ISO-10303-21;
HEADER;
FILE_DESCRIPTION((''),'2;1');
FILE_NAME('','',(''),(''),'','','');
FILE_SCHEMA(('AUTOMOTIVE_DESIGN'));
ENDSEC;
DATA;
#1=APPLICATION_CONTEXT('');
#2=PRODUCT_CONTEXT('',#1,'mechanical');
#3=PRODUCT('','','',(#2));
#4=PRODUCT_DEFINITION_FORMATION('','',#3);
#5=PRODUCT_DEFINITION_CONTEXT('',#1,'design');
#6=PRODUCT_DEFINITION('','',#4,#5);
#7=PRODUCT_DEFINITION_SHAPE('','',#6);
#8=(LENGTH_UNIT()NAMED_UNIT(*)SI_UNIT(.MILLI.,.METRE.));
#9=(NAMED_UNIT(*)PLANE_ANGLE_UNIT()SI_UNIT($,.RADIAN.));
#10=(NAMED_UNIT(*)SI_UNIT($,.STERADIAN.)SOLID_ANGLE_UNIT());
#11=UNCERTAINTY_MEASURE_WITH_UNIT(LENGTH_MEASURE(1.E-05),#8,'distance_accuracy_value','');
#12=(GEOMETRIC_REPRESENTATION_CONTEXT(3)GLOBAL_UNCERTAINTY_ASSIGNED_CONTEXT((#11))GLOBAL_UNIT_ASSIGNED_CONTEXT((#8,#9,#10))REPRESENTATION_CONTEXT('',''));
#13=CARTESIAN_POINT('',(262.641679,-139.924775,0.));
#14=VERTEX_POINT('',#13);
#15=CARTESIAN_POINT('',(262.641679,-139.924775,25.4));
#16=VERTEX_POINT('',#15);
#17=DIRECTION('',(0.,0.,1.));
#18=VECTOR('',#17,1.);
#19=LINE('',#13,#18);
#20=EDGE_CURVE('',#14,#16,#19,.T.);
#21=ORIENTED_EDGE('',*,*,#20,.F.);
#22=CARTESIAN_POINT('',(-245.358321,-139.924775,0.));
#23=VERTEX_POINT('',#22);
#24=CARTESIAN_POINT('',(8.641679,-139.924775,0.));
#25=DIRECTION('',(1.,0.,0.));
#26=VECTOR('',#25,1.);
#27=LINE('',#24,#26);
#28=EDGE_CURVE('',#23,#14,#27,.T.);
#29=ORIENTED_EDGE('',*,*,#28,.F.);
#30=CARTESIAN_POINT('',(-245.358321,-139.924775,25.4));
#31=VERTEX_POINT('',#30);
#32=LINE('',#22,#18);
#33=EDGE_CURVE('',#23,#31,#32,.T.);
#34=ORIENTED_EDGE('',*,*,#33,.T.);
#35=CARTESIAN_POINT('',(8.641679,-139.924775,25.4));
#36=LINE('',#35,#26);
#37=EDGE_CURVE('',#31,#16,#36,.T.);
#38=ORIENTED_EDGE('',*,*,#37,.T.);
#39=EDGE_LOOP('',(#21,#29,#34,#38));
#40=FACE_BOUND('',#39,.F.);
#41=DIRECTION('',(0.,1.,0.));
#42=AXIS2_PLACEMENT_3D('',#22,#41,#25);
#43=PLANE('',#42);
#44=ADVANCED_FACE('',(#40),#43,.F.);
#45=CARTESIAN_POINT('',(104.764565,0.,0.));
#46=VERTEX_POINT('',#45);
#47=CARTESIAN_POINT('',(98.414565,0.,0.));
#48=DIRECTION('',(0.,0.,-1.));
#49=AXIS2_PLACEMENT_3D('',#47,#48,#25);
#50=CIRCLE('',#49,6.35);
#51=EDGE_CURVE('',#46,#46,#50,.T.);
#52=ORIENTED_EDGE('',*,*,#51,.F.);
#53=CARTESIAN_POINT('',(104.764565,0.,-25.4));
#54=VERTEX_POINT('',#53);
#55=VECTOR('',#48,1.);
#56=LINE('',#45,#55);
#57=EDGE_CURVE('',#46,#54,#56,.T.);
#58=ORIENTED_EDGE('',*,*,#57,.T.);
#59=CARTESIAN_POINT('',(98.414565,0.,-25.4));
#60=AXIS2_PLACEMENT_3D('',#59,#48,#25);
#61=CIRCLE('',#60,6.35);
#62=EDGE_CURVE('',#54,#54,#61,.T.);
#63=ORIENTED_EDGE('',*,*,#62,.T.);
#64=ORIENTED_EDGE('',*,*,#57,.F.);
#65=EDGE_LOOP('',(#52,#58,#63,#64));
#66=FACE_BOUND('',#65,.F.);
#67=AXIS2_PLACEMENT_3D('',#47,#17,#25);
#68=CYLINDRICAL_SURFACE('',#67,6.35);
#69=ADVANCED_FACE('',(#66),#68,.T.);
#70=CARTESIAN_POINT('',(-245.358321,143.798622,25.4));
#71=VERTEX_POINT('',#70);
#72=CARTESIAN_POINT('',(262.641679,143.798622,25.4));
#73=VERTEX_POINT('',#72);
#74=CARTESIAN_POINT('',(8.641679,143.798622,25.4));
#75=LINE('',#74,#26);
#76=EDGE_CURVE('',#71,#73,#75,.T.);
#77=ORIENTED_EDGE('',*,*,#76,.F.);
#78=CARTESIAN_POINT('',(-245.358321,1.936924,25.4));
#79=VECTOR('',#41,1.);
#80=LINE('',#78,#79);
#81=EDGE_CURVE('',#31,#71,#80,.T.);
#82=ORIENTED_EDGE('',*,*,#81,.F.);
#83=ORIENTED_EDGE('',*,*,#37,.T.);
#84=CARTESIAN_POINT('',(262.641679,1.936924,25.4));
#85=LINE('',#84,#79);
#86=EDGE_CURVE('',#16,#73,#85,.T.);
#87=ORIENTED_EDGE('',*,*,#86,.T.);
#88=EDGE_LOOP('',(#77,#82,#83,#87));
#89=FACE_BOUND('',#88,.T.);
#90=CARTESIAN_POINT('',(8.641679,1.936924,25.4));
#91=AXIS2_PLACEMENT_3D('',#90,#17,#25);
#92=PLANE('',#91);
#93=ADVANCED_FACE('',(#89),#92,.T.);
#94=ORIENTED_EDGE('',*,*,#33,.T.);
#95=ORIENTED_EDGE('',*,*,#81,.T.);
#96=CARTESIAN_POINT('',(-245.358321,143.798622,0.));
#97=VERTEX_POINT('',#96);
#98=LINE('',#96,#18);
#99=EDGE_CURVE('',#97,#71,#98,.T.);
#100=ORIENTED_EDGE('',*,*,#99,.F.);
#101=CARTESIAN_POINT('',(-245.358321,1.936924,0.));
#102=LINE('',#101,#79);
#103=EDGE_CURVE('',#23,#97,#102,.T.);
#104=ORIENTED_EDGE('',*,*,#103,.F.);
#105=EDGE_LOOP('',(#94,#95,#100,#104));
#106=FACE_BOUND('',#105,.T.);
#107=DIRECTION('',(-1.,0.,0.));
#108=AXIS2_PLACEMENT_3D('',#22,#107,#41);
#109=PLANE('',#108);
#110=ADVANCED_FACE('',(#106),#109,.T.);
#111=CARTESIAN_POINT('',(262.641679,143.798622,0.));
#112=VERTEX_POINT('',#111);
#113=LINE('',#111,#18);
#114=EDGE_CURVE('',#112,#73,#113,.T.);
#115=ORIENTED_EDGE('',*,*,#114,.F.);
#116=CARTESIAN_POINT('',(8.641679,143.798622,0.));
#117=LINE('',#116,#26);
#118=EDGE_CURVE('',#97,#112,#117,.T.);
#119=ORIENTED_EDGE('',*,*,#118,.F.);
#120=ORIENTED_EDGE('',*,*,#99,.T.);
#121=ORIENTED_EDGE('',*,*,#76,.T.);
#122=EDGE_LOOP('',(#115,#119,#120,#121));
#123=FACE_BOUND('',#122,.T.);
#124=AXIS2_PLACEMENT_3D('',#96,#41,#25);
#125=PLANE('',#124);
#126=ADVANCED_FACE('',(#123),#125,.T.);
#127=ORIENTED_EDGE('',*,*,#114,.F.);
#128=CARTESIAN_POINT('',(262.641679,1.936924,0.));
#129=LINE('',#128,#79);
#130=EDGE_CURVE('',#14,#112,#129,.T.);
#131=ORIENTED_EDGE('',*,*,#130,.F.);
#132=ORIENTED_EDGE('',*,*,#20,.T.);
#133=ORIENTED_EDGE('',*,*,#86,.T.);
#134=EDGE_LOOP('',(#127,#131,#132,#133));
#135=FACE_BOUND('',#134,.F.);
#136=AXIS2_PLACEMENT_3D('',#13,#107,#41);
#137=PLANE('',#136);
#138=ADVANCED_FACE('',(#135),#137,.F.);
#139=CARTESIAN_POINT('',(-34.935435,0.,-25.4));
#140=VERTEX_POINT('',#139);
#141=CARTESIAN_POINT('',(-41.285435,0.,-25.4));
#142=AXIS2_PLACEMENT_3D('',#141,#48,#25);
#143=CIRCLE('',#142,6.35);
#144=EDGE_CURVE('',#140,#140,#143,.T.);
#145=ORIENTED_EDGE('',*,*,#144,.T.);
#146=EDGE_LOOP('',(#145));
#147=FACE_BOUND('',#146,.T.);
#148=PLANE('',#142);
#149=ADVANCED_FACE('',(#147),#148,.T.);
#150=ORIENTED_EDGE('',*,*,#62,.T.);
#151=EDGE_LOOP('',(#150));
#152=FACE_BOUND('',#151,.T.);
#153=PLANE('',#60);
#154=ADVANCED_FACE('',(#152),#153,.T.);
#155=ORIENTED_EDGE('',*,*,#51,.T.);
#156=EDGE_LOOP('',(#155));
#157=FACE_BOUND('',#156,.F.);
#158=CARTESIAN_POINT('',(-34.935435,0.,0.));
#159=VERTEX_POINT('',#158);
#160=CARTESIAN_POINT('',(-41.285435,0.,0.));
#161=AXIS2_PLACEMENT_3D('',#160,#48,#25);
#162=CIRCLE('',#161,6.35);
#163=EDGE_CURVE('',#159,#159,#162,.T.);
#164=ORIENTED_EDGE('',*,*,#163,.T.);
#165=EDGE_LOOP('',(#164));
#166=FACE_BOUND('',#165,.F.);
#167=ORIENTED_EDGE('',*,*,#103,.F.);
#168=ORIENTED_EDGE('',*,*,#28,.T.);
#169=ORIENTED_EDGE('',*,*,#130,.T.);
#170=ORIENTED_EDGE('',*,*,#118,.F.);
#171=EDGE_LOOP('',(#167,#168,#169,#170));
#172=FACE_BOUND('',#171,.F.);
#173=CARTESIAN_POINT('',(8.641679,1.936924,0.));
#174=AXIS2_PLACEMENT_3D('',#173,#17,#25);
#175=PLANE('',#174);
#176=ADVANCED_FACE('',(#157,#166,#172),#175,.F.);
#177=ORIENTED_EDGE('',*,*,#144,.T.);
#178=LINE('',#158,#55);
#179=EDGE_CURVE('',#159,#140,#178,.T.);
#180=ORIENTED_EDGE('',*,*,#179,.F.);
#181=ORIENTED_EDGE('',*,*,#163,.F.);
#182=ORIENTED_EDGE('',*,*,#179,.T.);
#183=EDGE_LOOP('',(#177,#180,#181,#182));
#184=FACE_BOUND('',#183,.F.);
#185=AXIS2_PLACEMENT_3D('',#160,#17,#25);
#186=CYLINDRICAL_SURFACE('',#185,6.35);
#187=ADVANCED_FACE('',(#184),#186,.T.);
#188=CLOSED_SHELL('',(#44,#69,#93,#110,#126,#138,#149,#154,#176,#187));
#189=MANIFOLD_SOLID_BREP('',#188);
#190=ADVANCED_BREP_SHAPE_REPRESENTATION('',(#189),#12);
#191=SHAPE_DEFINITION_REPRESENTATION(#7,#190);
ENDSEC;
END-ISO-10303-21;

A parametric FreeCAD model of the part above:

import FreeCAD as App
import Part
import Sketcher
Q = App.Units.Quantity

doc = App.newDocument("Part")
body = doc.addObject("PartDesign::Body", "Body")

sketch1 = body.newObject("Sketcher::SketchObject", "Sketch")
sketch1.AttachmentSupport = (doc.getObject("XY_Plane"), [""])
sketch1.MapMode = "FlatFace"
sketch1.addGeometry(Part.LineSegment(App.Vector(-245, 144, 0), App.Vector(-245, -140, 0)), False)
sketch1.addGeometry(Part.LineSegment(App.Vector(-245, -140, 0), App.Vector(263, -140, 0)), False)
sketch1.addGeometry(Part.LineSegment(App.Vector(263, -140, 0), App.Vector(263, 144, 0)), False)
sketch1.addGeometry(Part.LineSegment(App.Vector(263, 144, 0), App.Vector(-245, 144, 0)), False)
sketch1.addConstraint(Sketcher.Constraint("Coincident", 0, 2, 1, 1))
sketch1.addConstraint(Sketcher.Constraint("Coincident", 1, 2, 2, 1))
sketch1.addConstraint(Sketcher.Constraint("Coincident", 2, 2, 3, 1))
sketch1.addConstraint(Sketcher.Constraint("Coincident", 3, 2, 0, 1))
sketch1.addConstraint(Sketcher.Constraint("Vertical", 0))
sketch1.addConstraint(Sketcher.Constraint("Horizontal", 1))
sketch1.addConstraint(Sketcher.Constraint("Vertical", 2))
sketch1.addConstraint(Sketcher.Constraint("Horizontal", 3))
sketch1.addConstraint(Sketcher.Constraint("DistanceX", 1, 1, 1, 2, Q("20 in")))
sketch1.addConstraint(Sketcher.Constraint("DistanceY", 0, 2, 0, 1, Q("283.723397 mm")))
sketch1.addConstraint(Sketcher.Constraint("DistanceX", 0, 2, -1, 1, Q("245.358321 mm")))
sketch1.addConstraint(Sketcher.Constraint("DistanceY", 0, 2, -1, 1, Q("139.924775 mm")))
pad1 = body.newObject("PartDesign::Pad", "Pad")
pad1.Profile = sketch1
pad1.Length = Q("1 in")

sketch2 = body.newObject("Sketcher::SketchObject", "Sketch001")
sketch2.AttachmentSupport = (doc.getObject("XY_Plane"), [""])
sketch2.MapMode = "FlatFace"
sketch2.addGeometry(Part.Circle(App.Vector(-41, 0, 0), App.Vector(0, 0, 1), 6), False)
sketch2.addGeometry(Part.Circle(App.Vector(98, 0, 0), App.Vector(0, 0, 1), 6), False)
sketch2.addConstraint(Sketcher.Constraint("Equal", 0, 1))
sketch2.addConstraint(Sketcher.Constraint("PointOnObject", 0, 3, -1))
sketch2.addConstraint(Sketcher.Constraint("PointOnObject", 1, 3, -1))
sketch2.addConstraint(Sketcher.Constraint("Diameter", 0, Q("0.5 in")))
sketch2.addConstraint(Sketcher.Constraint("DistanceX", 0, 3, 1, 3, Q("5.5 in")))
sketch2.addConstraint(Sketcher.Constraint("DistanceX", 0, 3, -1, 1, Q("41.285435 mm")))
pad2 = body.newObject("PartDesign::Pad", "Pad001")
pad2.Profile = sketch2
pad2.Length = Q("1 in")
pad2.Reversed = True

doc.recompute()
